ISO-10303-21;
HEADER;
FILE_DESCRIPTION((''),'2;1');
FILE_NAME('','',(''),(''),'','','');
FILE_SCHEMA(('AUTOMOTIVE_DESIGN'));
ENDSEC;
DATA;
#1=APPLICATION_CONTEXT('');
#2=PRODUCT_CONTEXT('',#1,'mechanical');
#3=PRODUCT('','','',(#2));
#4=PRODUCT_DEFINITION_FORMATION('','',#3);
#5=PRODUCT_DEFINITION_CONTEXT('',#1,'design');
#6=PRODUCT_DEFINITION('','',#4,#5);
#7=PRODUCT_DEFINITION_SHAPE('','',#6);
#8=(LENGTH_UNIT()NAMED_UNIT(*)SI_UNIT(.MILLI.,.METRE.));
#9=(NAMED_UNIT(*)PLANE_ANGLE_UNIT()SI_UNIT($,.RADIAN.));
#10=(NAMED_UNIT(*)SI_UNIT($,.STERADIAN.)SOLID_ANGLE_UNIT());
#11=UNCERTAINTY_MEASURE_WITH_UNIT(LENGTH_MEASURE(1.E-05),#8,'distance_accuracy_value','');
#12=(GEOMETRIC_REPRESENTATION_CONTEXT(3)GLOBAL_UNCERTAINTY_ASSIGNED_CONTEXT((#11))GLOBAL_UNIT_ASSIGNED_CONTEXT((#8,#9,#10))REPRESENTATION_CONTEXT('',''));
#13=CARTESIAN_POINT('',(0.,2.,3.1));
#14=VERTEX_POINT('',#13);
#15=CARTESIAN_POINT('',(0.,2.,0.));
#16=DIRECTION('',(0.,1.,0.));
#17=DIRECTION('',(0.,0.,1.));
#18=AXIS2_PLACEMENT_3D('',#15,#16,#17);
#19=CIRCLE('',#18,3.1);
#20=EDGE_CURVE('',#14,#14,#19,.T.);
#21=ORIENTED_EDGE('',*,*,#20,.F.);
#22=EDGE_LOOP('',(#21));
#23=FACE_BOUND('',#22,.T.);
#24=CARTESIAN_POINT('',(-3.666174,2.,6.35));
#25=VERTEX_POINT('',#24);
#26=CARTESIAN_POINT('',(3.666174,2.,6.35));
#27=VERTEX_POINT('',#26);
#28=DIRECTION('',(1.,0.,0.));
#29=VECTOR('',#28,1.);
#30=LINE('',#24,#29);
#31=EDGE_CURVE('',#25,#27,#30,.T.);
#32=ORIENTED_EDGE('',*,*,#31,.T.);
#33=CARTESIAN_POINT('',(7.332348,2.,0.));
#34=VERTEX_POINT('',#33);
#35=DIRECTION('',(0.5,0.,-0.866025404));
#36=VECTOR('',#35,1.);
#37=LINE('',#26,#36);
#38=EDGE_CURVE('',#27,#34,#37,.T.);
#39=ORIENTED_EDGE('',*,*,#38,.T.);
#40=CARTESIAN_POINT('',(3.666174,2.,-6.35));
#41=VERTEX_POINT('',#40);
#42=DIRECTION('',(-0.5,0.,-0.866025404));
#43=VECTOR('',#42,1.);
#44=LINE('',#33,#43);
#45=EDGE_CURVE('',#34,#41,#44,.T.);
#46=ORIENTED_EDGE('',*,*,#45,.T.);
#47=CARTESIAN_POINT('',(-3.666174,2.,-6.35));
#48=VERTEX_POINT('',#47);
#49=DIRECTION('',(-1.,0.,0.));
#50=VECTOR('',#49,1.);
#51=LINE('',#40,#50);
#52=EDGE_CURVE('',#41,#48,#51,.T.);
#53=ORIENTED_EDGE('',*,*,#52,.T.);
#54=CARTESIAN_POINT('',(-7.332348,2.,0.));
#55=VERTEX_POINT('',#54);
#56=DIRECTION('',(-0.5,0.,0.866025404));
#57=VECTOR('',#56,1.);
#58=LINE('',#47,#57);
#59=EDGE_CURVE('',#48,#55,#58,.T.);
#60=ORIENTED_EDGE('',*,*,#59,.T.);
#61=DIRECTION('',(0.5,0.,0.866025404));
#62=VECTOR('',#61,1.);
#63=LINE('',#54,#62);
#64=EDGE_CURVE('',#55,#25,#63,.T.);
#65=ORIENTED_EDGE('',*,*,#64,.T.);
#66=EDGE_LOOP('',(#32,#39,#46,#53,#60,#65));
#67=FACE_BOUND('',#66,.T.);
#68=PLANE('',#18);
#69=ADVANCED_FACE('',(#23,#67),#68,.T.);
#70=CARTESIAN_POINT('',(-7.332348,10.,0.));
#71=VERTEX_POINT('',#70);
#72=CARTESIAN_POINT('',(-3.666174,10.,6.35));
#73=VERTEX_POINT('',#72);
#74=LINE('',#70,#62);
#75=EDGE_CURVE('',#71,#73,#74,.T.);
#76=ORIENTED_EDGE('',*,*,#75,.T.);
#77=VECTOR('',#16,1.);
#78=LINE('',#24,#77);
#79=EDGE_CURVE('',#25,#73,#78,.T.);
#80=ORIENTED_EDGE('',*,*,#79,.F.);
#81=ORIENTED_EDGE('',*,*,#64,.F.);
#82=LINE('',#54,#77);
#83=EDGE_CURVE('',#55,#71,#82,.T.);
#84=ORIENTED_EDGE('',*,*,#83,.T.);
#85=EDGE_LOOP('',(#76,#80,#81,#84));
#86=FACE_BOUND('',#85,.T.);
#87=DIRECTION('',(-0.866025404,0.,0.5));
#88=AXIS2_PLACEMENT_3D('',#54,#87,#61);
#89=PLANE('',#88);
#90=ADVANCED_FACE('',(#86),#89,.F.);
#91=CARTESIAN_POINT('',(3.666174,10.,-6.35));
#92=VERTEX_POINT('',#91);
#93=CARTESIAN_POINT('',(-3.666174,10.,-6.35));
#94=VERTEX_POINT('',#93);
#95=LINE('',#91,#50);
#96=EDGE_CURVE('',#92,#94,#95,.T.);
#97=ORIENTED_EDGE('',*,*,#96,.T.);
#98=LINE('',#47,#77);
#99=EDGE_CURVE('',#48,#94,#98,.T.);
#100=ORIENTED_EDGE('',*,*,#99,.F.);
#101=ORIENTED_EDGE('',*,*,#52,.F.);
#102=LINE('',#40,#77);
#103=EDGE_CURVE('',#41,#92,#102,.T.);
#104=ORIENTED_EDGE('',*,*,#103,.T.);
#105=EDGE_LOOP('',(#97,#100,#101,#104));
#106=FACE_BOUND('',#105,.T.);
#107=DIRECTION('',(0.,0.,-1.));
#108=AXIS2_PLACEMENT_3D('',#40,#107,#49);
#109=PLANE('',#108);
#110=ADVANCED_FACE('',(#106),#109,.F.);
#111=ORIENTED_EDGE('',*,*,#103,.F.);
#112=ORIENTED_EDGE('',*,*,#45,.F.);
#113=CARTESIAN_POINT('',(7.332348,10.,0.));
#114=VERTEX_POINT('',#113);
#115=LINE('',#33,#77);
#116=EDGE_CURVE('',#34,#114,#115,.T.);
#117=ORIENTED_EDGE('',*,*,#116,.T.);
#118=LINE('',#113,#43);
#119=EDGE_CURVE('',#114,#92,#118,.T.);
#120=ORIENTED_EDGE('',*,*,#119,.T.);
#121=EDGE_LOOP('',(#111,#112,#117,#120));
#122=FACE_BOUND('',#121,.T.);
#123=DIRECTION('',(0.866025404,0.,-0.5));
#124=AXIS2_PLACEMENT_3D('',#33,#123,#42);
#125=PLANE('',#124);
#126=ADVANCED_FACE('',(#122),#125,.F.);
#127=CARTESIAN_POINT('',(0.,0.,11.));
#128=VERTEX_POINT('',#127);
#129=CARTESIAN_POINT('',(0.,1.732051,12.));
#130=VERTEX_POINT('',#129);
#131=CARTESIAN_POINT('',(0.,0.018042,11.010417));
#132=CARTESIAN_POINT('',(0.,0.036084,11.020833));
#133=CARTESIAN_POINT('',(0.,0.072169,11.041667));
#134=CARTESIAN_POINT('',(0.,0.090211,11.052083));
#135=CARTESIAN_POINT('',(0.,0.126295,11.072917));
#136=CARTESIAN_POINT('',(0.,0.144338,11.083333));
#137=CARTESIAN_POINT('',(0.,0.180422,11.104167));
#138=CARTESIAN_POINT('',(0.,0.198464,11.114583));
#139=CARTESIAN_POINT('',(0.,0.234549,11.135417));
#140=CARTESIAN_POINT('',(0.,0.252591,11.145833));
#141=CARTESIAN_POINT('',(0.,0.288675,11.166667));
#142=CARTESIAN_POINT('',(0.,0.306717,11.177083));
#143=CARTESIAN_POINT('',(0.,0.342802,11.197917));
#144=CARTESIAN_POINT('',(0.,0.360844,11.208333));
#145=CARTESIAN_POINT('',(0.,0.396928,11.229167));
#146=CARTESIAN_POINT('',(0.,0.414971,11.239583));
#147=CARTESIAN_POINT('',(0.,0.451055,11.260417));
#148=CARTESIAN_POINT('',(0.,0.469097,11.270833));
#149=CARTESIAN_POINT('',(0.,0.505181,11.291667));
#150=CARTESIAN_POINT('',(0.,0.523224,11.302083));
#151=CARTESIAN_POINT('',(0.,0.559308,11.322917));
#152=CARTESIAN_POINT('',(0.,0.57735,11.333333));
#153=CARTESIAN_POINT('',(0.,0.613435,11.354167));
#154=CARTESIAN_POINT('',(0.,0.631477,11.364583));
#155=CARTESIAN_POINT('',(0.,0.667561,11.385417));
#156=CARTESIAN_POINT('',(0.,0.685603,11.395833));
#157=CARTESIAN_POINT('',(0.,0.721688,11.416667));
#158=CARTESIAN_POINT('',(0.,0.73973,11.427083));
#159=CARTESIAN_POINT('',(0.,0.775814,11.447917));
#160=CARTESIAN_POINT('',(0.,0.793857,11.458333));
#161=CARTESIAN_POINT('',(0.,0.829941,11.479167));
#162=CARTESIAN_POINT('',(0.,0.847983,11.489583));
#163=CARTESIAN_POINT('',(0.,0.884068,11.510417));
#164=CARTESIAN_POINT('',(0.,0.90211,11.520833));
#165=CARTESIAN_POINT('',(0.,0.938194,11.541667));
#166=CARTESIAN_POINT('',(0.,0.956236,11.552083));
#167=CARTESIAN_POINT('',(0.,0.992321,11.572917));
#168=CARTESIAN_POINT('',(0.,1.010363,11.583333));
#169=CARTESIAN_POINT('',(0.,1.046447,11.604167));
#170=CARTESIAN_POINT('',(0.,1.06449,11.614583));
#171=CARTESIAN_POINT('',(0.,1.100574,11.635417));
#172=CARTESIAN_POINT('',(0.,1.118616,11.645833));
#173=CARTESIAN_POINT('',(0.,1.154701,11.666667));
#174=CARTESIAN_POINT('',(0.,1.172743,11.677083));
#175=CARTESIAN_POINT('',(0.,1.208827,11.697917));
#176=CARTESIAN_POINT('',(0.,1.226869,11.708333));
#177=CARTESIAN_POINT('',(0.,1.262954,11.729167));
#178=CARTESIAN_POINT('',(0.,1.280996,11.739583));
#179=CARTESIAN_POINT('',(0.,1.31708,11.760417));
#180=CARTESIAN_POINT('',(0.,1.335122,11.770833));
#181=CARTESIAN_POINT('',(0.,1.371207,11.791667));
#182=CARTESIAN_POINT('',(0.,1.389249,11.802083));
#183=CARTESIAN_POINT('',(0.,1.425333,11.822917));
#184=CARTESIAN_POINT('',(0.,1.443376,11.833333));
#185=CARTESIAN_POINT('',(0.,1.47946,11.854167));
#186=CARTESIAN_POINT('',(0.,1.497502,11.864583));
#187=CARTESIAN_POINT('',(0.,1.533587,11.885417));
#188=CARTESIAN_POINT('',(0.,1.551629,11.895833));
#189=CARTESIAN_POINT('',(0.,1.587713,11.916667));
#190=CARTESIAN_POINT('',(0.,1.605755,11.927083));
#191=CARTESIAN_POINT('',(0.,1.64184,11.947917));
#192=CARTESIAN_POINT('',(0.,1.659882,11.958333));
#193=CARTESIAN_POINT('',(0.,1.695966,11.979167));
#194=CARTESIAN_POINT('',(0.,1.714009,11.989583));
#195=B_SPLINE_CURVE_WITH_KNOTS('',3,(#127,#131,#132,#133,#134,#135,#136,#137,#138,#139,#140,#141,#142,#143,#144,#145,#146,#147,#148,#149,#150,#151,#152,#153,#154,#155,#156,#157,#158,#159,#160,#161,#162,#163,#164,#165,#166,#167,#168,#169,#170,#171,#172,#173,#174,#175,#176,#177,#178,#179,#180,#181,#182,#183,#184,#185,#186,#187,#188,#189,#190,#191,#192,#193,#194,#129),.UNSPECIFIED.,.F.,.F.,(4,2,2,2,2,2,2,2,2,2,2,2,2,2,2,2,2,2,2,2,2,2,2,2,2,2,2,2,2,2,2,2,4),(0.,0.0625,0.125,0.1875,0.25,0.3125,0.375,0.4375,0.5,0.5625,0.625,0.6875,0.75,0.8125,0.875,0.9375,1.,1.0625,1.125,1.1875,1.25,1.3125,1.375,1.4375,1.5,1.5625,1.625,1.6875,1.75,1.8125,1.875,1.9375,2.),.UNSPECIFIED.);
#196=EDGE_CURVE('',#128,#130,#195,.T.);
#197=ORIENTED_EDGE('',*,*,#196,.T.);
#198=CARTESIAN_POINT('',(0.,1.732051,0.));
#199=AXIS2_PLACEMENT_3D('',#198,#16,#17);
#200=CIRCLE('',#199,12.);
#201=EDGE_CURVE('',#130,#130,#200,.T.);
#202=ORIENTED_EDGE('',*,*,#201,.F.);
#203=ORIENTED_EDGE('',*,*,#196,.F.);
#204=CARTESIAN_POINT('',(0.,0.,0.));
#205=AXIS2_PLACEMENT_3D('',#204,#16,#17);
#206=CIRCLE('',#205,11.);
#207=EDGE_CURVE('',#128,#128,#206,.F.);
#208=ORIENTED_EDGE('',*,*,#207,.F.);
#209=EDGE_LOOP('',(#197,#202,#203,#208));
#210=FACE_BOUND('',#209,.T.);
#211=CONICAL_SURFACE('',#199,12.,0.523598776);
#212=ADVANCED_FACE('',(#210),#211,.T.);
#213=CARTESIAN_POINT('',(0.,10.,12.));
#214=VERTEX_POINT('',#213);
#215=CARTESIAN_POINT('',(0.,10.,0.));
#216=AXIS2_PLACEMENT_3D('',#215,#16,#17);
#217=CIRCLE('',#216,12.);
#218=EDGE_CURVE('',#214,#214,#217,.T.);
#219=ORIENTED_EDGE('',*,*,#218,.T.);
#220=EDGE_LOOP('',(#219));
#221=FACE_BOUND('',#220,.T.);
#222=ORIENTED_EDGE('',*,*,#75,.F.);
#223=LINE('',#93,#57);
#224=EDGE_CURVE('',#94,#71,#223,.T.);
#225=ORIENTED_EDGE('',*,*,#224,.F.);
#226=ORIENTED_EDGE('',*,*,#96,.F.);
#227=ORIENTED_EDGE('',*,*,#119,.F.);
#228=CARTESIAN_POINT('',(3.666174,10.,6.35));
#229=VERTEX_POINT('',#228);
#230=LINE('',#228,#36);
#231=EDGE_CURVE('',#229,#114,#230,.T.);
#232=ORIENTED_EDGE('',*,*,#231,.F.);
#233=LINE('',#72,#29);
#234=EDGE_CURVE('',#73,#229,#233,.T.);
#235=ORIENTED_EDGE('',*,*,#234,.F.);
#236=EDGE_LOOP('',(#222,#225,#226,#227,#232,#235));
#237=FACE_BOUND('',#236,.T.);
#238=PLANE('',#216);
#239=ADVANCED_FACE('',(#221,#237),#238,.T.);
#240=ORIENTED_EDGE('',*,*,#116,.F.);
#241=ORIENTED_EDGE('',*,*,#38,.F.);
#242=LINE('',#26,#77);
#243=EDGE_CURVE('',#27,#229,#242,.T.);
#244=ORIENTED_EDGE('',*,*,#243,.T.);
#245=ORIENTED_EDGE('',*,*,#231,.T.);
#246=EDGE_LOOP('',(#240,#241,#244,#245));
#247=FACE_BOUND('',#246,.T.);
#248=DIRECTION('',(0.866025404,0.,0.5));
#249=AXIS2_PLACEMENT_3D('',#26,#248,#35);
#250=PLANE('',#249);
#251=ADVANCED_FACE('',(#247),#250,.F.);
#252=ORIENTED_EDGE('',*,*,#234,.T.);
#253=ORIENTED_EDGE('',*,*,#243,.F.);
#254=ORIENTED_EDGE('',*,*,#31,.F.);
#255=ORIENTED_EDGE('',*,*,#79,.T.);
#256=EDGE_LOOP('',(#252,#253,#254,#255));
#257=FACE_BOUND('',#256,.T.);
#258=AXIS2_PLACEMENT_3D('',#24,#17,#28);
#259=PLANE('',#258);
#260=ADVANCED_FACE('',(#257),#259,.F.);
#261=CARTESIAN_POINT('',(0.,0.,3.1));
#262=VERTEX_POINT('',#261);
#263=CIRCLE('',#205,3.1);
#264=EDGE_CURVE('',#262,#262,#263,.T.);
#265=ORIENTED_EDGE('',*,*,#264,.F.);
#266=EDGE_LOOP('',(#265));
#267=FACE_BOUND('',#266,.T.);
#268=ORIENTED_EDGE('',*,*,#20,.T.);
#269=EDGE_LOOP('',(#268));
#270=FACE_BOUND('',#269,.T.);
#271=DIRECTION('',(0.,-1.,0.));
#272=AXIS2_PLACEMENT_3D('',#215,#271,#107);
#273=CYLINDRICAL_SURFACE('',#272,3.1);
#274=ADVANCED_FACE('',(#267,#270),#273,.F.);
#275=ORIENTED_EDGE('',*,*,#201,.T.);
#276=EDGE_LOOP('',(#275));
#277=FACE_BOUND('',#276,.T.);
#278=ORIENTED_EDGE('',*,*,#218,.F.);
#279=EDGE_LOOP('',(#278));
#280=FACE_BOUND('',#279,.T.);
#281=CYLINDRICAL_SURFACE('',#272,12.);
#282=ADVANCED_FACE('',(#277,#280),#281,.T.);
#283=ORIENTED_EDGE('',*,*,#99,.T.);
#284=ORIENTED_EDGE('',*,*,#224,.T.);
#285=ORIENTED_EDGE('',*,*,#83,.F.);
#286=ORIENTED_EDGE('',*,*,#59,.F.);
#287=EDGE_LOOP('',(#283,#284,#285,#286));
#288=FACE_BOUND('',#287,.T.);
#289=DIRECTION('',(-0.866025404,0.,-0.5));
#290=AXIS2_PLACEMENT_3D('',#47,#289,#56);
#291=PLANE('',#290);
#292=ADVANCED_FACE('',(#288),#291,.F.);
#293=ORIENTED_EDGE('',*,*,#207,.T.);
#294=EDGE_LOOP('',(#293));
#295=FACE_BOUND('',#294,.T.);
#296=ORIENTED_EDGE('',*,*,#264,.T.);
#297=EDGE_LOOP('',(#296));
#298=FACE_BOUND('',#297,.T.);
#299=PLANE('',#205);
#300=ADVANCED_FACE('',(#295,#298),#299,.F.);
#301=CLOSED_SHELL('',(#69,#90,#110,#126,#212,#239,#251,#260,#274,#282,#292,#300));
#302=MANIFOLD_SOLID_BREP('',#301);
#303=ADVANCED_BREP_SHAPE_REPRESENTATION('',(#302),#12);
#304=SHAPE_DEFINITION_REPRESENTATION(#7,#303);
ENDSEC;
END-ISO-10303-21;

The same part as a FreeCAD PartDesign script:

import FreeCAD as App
import Part
import Sketcher
from FreeCAD import Vector
Q = App.Units.Quantity


def edges_at(feature, points):
    """Names of the edges that pass closest to the given points."""
    edges = feature.Shape.Edges
    near = lambda p: min(range(len(edges)), key=lambda i: edges[i].distToShape(Part.Vertex(*p))[0])
    return sorted({f"Edge{near(p) + 1}" for p in points})


def add_polygon(sketch, points):
    """Adds a closed chain of lines whose ends are joined by coincident constraints."""
    first, n = sketch.GeometryCount, len(points)
    for a, b in zip(points, points[1:] + points[:1]):
        sketch.addGeometry(Part.LineSegment(App.Vector(*a, 0), App.Vector(*b, 0)), False)
    for i in range(n):
        sketch.addConstraint(Sketcher.Constraint("Coincident", first + i, 2, first + (i + 1) % n, 1))

doc = App.newDocument("Part")
body = doc.addObject("PartDesign::Body", "Body")

# Sketch on XZ plane
sketch1 = body.newObject("Sketcher::SketchObject", "Sketch")
sketch1.AttachmentSupport = (doc.getObject("XZ_Plane"), [""])
sketch1.MapMode = "FlatFace"
sketch1.addGeometry([
    Part.Circle(Vector(0, 0, 0), Vector(0, 0, 1), 12),
    Part.Circle(Vector(0, 0, 0), Vector(0, 0, 1), 3.1),
], False)
sketch1.addConstraint([
    Sketcher.Constraint("Coincident", 0, 3, -1, 1),
    Sketcher.Constraint("Coincident", 1, 3, -1, 1),
    Sketcher.Constraint("Diameter", 0, Q("24 mm")),
    Sketcher.Constraint("Diameter", 1, Q("6.2 mm")),
])
pad1 = body.newObject("PartDesign::Pad", "Pad")
pad1.Profile = sketch1
pad1.Length = 10
pad1.Reversed = True

# Sketch on XZ plane
sketch2 = body.newObject("Sketcher::SketchObject", "Sketch001")
sketch2.AttachmentSupport = (doc.getObject("XZ_Plane"), [""])
sketch2.MapMode = "FlatFace"
sketch2.AttachmentOffset = App.Placement(Vector(0, 0, -10), App.Rotation())
add_polygon(sketch2, [(7, 0), (4, -6), (-4, -6), (-7, 0), (-4, 6), (4, 6)])  # lines 0-5
sketch2.addConstraint([
    Sketcher.Constraint("Horizontal", 1),
    Sketcher.Constraint("Horizontal", 4),
    Sketcher.Constraint("Symmetric", 0, 2, 3, 2, -1, 1),
    Sketcher.Constraint("Symmetric", 2, 2, 5, 2, -1, 1),
    Sketcher.Constraint("PointOnObject", 2, 2, -1),
    Sketcher.Constraint("Parallel", 2, 5),
    Sketcher.Constraint("Vertical", 1, 2, 3, 2),
    Sketcher.Constraint("Angle", 0, Q("-120 deg")),
    Sketcher.Constraint("DistanceY", 1, 2, 3, 2, Q("12.7 mm")),
    Sketcher.Constraint("DistanceX", 1, 2, 1, 1, Q("7.332348 mm")),
])
pocket1 = body.newObject("PartDesign::Pocket", "Pocket")
pocket1.Profile = sketch2
pocket1.Length = 8
pocket1.Reversed = True
doc.recompute()

chamfer = body.newObject("PartDesign::Chamfer", "Chamfer")
chamfer.Base = (pocket1, edges_at(pocket1, [(0, 0, -12)]))
chamfer.ChamferType = "Two distances"
chamfer.Size = 1
chamfer.Size2 = 1.732051
chamfer.FlipDirection = True

doc.recompute()
